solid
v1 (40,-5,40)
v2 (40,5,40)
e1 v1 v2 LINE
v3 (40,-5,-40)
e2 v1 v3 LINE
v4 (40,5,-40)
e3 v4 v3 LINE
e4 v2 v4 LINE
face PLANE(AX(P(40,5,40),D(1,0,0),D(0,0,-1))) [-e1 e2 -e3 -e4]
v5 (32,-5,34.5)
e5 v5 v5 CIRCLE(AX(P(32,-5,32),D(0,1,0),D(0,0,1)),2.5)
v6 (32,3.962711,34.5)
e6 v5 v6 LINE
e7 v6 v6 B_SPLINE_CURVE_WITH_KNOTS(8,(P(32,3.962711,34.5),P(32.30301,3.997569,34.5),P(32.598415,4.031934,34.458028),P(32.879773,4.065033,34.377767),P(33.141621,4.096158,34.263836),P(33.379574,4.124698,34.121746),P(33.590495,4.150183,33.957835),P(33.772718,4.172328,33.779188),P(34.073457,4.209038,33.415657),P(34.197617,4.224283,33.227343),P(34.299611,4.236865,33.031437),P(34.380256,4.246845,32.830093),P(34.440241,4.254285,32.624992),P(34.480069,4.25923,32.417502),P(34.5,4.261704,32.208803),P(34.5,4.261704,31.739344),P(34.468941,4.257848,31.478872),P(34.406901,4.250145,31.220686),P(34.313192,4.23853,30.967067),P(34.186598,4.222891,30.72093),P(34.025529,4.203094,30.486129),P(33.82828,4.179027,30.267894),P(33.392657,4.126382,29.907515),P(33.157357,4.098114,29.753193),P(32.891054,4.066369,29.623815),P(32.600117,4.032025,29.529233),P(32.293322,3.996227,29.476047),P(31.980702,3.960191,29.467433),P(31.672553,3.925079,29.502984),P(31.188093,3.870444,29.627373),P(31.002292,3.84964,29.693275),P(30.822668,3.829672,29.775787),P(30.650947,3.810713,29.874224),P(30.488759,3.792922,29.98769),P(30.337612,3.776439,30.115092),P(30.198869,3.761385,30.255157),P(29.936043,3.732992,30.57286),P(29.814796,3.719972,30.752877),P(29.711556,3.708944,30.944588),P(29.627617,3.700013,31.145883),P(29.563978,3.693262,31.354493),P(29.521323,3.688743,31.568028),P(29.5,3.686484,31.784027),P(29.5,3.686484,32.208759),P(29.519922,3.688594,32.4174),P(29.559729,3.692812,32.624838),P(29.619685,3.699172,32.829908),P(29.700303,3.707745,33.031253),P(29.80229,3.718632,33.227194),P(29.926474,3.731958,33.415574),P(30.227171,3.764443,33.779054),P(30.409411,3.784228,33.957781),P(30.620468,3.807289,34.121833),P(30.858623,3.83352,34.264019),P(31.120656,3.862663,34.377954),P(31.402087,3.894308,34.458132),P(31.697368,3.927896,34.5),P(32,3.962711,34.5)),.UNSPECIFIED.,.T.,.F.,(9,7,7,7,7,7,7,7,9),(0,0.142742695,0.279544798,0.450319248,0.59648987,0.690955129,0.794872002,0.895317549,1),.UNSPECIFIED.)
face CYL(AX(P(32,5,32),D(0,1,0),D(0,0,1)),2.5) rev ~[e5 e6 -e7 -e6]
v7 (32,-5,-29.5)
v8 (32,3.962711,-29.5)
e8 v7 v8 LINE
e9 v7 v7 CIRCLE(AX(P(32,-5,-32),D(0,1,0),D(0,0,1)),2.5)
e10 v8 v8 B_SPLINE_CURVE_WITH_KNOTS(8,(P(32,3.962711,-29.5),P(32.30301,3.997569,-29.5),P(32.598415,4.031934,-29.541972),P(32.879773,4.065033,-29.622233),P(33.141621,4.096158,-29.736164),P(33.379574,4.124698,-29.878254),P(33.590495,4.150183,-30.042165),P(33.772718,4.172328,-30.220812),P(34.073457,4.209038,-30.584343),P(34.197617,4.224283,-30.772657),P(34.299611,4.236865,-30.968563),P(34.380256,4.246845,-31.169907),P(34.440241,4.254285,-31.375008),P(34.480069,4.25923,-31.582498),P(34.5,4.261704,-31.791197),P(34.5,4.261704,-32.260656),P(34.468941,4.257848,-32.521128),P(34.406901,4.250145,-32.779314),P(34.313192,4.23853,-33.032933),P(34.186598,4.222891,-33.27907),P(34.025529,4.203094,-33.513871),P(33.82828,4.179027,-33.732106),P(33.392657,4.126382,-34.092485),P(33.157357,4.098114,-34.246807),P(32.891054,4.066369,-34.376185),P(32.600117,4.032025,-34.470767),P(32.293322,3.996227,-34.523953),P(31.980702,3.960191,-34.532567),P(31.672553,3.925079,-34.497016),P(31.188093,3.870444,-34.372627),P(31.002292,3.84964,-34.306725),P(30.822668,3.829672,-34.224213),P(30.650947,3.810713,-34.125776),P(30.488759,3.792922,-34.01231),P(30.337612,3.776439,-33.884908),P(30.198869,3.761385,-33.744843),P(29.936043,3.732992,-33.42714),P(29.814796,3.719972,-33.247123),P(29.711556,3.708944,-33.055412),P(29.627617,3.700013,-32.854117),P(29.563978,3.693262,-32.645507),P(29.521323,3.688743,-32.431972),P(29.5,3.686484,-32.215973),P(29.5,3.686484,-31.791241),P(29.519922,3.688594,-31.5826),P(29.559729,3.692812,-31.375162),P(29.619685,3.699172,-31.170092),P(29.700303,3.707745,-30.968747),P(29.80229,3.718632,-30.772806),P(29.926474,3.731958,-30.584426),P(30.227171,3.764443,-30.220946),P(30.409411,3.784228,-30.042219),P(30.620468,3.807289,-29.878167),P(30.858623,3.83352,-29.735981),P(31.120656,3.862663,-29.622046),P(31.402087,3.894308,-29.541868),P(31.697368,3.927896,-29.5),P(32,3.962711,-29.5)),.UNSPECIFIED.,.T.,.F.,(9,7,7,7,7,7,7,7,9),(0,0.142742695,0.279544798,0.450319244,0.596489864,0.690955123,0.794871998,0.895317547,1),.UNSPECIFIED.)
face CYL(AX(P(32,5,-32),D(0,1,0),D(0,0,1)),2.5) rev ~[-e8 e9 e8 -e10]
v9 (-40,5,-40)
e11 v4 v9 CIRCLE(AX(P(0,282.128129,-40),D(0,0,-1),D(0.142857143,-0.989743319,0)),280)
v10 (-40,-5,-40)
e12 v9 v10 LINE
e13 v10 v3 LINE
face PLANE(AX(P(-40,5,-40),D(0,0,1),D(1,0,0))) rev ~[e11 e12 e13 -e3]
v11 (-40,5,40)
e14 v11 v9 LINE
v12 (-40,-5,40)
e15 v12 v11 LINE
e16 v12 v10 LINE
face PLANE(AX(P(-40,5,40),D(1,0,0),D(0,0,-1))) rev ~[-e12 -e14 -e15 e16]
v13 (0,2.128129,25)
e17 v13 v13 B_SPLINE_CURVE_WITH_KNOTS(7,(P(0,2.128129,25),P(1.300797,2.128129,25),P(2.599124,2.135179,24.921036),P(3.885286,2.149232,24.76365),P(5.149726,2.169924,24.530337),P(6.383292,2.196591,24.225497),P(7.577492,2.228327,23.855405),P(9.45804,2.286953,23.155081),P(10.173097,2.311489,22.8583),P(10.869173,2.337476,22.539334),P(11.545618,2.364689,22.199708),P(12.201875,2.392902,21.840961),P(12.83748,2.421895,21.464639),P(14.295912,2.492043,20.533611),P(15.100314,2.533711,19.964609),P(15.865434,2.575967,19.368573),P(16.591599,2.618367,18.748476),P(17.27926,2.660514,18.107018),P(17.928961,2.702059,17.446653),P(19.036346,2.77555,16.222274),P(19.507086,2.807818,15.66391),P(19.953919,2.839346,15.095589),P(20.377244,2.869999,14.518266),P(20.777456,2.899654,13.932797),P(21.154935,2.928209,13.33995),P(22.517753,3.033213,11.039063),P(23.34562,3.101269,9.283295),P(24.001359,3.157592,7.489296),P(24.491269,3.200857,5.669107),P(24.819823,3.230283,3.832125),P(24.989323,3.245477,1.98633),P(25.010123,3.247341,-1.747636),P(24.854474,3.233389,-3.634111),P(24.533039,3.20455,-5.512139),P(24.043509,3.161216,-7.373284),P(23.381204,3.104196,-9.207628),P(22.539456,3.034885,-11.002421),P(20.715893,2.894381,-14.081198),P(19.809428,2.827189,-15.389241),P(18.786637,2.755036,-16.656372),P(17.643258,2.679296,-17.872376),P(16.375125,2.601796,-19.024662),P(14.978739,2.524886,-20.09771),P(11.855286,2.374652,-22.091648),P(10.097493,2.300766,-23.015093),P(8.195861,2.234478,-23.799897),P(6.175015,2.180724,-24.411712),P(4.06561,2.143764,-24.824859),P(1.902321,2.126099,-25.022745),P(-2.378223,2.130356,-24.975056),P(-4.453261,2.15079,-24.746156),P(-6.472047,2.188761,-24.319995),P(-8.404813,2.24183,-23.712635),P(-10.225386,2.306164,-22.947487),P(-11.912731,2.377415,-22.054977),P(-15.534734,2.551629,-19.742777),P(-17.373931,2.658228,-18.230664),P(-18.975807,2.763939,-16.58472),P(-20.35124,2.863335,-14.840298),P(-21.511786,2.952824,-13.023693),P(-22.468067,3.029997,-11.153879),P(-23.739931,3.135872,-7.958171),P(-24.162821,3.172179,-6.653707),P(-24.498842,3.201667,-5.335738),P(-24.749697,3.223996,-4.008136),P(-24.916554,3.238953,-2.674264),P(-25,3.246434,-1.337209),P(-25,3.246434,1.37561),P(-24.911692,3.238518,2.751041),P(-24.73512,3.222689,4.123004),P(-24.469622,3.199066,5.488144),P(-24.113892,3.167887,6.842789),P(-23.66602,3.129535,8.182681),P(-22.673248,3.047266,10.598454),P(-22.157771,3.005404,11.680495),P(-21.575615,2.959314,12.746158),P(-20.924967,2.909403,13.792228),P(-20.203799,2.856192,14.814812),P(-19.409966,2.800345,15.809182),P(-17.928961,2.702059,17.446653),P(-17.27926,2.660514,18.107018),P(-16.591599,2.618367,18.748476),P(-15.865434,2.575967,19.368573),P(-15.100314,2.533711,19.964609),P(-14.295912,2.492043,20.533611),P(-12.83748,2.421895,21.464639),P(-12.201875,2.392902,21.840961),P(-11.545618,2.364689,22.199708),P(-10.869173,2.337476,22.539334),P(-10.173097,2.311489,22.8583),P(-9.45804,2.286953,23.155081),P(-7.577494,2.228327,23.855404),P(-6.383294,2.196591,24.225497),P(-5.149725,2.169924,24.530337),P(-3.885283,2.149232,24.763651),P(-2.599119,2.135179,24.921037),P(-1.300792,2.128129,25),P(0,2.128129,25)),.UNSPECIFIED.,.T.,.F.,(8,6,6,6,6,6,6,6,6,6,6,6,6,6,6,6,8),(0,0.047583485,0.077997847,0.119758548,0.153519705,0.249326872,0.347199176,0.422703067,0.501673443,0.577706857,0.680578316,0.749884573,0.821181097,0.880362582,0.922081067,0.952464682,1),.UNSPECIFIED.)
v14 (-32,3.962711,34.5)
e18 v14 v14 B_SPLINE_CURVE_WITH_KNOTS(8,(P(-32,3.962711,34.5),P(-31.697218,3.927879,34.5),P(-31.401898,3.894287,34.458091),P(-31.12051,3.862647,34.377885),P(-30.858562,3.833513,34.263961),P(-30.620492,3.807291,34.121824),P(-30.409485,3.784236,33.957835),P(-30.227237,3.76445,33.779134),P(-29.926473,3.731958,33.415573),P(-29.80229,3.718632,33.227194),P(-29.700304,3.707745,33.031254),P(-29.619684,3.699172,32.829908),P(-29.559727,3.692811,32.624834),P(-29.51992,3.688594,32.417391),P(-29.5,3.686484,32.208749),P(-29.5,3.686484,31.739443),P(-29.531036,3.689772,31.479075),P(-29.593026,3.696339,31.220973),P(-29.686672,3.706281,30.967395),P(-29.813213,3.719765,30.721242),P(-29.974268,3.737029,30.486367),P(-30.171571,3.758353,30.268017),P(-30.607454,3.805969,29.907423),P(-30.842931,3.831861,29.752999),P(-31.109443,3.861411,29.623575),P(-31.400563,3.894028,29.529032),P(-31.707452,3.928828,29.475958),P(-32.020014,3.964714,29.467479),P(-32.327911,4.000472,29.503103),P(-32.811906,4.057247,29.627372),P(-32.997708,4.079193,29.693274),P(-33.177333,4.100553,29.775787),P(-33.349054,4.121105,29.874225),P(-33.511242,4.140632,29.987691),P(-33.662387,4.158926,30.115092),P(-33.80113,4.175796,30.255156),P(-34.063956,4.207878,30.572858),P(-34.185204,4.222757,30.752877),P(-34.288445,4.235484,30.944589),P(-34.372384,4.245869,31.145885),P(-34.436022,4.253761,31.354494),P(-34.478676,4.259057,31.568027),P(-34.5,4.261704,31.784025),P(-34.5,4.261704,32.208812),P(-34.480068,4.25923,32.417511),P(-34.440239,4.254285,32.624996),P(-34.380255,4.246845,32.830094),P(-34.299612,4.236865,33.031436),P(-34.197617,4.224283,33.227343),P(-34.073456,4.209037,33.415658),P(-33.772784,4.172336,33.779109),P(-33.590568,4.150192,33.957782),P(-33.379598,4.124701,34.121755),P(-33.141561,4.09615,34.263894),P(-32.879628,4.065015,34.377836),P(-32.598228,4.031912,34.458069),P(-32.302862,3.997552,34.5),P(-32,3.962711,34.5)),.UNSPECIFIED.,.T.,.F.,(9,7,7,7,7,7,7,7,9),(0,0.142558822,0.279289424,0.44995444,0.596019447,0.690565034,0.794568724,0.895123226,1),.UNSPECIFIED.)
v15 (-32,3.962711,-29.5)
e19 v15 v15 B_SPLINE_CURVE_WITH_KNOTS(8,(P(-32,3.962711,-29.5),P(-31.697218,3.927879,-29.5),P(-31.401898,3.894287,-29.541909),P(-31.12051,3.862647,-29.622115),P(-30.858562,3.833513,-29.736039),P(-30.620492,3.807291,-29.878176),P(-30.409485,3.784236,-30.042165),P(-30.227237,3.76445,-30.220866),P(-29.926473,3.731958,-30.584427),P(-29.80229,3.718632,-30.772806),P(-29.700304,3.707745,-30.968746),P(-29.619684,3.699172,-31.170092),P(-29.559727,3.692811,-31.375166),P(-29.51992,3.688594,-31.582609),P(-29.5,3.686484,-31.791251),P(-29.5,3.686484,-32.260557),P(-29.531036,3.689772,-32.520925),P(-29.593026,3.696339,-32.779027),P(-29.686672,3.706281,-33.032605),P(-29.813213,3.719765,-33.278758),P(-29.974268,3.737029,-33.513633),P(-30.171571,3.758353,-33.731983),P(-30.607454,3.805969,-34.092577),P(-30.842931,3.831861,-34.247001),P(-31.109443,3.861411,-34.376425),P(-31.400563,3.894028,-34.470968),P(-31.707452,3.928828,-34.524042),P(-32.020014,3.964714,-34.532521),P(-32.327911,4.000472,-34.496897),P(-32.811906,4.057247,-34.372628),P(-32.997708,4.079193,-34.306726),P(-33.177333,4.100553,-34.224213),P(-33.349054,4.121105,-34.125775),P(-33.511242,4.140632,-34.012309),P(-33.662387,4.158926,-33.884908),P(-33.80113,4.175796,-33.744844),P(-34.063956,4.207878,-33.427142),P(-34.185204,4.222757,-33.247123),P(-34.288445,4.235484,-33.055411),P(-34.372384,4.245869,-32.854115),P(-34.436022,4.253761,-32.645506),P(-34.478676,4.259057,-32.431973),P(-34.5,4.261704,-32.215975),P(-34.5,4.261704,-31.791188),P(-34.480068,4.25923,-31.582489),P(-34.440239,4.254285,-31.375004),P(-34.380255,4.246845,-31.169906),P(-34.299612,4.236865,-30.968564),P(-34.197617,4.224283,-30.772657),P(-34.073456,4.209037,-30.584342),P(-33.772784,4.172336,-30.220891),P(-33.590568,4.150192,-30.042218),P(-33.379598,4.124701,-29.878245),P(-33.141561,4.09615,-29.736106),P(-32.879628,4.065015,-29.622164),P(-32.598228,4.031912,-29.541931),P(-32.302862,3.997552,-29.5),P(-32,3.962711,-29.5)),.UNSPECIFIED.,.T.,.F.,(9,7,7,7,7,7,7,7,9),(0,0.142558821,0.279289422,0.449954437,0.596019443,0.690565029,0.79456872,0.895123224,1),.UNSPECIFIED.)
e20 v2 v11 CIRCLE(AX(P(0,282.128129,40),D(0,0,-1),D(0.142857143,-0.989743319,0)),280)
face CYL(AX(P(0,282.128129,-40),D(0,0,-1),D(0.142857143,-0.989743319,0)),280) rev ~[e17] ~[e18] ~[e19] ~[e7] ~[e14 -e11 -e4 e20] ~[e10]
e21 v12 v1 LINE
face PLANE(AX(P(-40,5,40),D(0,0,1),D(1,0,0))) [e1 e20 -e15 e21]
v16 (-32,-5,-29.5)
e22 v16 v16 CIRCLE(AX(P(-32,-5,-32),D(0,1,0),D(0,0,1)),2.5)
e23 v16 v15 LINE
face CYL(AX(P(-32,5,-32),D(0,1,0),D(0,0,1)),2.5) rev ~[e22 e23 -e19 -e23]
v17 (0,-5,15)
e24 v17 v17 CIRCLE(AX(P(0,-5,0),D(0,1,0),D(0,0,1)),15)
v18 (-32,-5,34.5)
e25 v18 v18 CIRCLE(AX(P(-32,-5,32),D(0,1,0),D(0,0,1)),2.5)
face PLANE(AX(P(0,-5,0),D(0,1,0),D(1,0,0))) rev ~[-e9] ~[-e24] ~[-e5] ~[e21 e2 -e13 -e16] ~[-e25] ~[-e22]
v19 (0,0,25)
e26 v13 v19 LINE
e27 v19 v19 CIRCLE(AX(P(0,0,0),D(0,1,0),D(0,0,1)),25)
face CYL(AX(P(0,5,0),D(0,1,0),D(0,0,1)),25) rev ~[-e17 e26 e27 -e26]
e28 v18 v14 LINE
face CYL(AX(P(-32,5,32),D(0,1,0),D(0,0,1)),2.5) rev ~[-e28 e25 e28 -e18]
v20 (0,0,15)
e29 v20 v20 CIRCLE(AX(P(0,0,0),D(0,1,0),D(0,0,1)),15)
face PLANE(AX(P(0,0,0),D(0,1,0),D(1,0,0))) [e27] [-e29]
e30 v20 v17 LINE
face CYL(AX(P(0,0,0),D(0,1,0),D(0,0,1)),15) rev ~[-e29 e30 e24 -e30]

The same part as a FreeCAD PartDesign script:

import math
import FreeCAD as App
import Part
import Sketcher


def add_polygon(sketch, points):
    """Adds a closed chain of lines whose ends are joined by coincident constraints."""
    first, n = sketch.GeometryCount, len(points)
    for a, b in zip(points, points[1:] + points[:1]):
        sketch.addGeometry(Part.LineSegment(App.Vector(*a, 0), App.Vector(*b, 0)), False)
    for i in range(n):
        sketch.addConstraint(Sketcher.Constraint("Coincident", first + i, 2, first + (i + 1) % n, 1))

doc = App.newDocument("Part")
body = doc.addObject("PartDesign::Body", "Body")

sketch1 = body.newObject("Sketcher::SketchObject", "Sketch")
sketch1.AttachmentSupport = (doc.getObject("XZ_Plane"), [""])
sketch1.MapMode = "FlatFace"
add_polygon(sketch1, [(-40, -40), (-40, 40), (40, 40), (40, -40)])
sketch1.addGeometry(Part.Circle(App.Vector(-32, 32, 0), App.Vector(0, 0, 1), 2.5), False)
sketch1.addGeometry(Part.Circle(App.Vector(32, 32, 0), App.Vector(0, 0, 1), 2.5), False)
sketch1.addGeometry(Part.Circle(App.Vector(-32, -32, 0), App.Vector(0, 0, 1), 2.5), False)
sketch1.addGeometry(Part.Circle(App.Vector(0, 0, 0), App.Vector(0, 0, 1), 15), False)
sketch1.addGeometry(Part.Circle(App.Vector(32, -32, 0), App.Vector(0, 0, 1), 2.5), False)
sketch1.addConstraint([
    Sketcher.Constraint("Vertical", 0),
    Sketcher.Constraint("Horizontal", 1),
    Sketcher.Constraint("Vertical", 2),
    Sketcher.Constraint("Horizontal", 3),
    Sketcher.Constraint("Coincident", 7, 3, -1, 1),
    Sketcher.Constraint("Equal", 4, 5),
    Sketcher.Constraint("Equal", 5, 6),
    Sketcher.Constraint("Equal", 6, 8),
    Sketcher.Constraint("Symmetric", 5, 3, 6, 3, -1, 1),
    Sketcher.Constraint("Symmetric", 4, 3, 8, 3, -1, 1),
    Sketcher.Constraint("Symmetric", 0, 2, 2, 2, -1, 1),
    Sketcher.Constraint("Symmetric", 4, 3, 5, 3, -2),
    Sketcher.Constraint("Equal", 3, 0),
    Sketcher.Constraint("Diameter", 4, 5.0),
    Sketcher.Constraint("Diameter", 7, 30.0),
    Sketcher.Constraint("DistanceX", 1, 1, 1, 2, 80.0),
    Sketcher.Constraint("DistanceX", 4, 3, -1, 1, 32.0),
    Sketcher.Constraint("DistanceY", -1, 1, 4, 3, 32.0),
])
pad1 = body.newObject("PartDesign::Pad", "Pad")
pad1.Profile = sketch1
pad1.Length = 5

sketch2 = body.newObject("Sketcher::SketchObject", "Sketch001")
sketch2.AttachmentSupport = (doc.getObject("XZ_Plane"), [""])
sketch2.MapMode = "FlatFace"
sketch2.AttachmentOffset = App.Placement(App.Vector(0, 0, -5), App.Rotation())
add_polygon(sketch2, [(-40, -40), (-40, 40), (40, 40), (40, -40)])
sketch2.addGeometry(Part.Circle(App.Vector(-32, 32, 0), App.Vector(0, 0, 1), 2.5), False)
sketch2.addGeometry(Part.Circle(App.Vector(32, 32, 0), App.Vector(0, 0, 1), 2.5), False)
sketch2.addGeometry(Part.Circle(App.Vector(-32, -32, 0), App.Vector(0, 0, 1), 2.5), False)
sketch2.addGeometry(Part.Circle(App.Vector(0, 0, 0), App.Vector(0, 0, 1), 25), False)
sketch2.addGeometry(Part.Circle(App.Vector(32, -32, 0), App.Vector(0, 0, 1), 2.5), False)
sketch2.addConstraint([
    Sketcher.Constraint("Vertical", 0),
    Sketcher.Constraint("Horizontal", 1),
    Sketcher.Constraint("Vertical", 2),
    Sketcher.Constraint("Horizontal", 3),
    Sketcher.Constraint("Coincident", 7, 3, -1, 1),
    Sketcher.Constraint("Equal", 4, 5),
    Sketcher.Constraint("Equal", 5, 6),
    Sketcher.Constraint("Equal", 6, 8),
    Sketcher.Constraint("Symmetric", 5, 3, 6, 3, -1, 1),
    Sketcher.Constraint("Symmetric", 4, 3, 8, 3, -1, 1),
    Sketcher.Constraint("Symmetric", 0, 2, 2, 2, -1, 1),
    Sketcher.Constraint("Symmetric", 4, 3, 5, 3, -2),
    Sketcher.Constraint("Equal", 3, 0),
    Sketcher.Constraint("Diameter", 4, 5.0),
    Sketcher.Constraint("Diameter", 7, 50.0),
    Sketcher.Constraint("DistanceX", 1, 1, 1, 2, 80.0),
    Sketcher.Constraint("DistanceX", 4, 3, -1, 1, 32.0),
    Sketcher.Constraint("DistanceY", -1, 1, 4, 3, 32.0),
])
pad2 = body.newObject("PartDesign::Pad", "Pad001")
pad2.Profile = sketch2
pad2.Length = 5

sketch3 = body.newObject("Sketcher::SketchObject", "Sketch002")
sketch3.AttachmentSupport = (doc.getObject("XY_Plane"), [""])
sketch3.MapMode = "FlatFace"
sketch3.AttachmentOffset = App.Placement(App.Vector(0, 0, -40), App.Rotation())
sketch3.addGeometry([
    Part.LineSegment(App.Vector(-40, 5, 0), App.Vector(40, 5, 0)),
    Part.ArcOfCircle(Part.Circle(App.Vector(0, 282, 0), App.Vector(0, 0, 1), 280), math.radians(-98.21), math.radians(-81.79)),
], False)
sketch3.addConstraint([
    Sketcher.Constraint("Coincident", 0, 1, 1, 1),
    Sketcher.Constraint("Coincident", 1, 2, 0, 2),
    Sketcher.Constraint("Horizontal", 0),
    Sketcher.Constraint("PointOnObject", 1, 3, -2),
    Sketcher.Constraint("Radius", 1, 280.0),
    Sketcher.Constraint("DistanceX", 0, 1, 0, 2, 80.0),
    Sketcher.Constraint("DistanceY", -1, 1, 0, 1, 5.0),
])
pocket1 = body.newObject("PartDesign::Pocket", "Pocket")
pocket1.Profile = sketch3
pocket1.Type = "ThroughAll"
pocket1.Reversed = True

doc.recompute()
